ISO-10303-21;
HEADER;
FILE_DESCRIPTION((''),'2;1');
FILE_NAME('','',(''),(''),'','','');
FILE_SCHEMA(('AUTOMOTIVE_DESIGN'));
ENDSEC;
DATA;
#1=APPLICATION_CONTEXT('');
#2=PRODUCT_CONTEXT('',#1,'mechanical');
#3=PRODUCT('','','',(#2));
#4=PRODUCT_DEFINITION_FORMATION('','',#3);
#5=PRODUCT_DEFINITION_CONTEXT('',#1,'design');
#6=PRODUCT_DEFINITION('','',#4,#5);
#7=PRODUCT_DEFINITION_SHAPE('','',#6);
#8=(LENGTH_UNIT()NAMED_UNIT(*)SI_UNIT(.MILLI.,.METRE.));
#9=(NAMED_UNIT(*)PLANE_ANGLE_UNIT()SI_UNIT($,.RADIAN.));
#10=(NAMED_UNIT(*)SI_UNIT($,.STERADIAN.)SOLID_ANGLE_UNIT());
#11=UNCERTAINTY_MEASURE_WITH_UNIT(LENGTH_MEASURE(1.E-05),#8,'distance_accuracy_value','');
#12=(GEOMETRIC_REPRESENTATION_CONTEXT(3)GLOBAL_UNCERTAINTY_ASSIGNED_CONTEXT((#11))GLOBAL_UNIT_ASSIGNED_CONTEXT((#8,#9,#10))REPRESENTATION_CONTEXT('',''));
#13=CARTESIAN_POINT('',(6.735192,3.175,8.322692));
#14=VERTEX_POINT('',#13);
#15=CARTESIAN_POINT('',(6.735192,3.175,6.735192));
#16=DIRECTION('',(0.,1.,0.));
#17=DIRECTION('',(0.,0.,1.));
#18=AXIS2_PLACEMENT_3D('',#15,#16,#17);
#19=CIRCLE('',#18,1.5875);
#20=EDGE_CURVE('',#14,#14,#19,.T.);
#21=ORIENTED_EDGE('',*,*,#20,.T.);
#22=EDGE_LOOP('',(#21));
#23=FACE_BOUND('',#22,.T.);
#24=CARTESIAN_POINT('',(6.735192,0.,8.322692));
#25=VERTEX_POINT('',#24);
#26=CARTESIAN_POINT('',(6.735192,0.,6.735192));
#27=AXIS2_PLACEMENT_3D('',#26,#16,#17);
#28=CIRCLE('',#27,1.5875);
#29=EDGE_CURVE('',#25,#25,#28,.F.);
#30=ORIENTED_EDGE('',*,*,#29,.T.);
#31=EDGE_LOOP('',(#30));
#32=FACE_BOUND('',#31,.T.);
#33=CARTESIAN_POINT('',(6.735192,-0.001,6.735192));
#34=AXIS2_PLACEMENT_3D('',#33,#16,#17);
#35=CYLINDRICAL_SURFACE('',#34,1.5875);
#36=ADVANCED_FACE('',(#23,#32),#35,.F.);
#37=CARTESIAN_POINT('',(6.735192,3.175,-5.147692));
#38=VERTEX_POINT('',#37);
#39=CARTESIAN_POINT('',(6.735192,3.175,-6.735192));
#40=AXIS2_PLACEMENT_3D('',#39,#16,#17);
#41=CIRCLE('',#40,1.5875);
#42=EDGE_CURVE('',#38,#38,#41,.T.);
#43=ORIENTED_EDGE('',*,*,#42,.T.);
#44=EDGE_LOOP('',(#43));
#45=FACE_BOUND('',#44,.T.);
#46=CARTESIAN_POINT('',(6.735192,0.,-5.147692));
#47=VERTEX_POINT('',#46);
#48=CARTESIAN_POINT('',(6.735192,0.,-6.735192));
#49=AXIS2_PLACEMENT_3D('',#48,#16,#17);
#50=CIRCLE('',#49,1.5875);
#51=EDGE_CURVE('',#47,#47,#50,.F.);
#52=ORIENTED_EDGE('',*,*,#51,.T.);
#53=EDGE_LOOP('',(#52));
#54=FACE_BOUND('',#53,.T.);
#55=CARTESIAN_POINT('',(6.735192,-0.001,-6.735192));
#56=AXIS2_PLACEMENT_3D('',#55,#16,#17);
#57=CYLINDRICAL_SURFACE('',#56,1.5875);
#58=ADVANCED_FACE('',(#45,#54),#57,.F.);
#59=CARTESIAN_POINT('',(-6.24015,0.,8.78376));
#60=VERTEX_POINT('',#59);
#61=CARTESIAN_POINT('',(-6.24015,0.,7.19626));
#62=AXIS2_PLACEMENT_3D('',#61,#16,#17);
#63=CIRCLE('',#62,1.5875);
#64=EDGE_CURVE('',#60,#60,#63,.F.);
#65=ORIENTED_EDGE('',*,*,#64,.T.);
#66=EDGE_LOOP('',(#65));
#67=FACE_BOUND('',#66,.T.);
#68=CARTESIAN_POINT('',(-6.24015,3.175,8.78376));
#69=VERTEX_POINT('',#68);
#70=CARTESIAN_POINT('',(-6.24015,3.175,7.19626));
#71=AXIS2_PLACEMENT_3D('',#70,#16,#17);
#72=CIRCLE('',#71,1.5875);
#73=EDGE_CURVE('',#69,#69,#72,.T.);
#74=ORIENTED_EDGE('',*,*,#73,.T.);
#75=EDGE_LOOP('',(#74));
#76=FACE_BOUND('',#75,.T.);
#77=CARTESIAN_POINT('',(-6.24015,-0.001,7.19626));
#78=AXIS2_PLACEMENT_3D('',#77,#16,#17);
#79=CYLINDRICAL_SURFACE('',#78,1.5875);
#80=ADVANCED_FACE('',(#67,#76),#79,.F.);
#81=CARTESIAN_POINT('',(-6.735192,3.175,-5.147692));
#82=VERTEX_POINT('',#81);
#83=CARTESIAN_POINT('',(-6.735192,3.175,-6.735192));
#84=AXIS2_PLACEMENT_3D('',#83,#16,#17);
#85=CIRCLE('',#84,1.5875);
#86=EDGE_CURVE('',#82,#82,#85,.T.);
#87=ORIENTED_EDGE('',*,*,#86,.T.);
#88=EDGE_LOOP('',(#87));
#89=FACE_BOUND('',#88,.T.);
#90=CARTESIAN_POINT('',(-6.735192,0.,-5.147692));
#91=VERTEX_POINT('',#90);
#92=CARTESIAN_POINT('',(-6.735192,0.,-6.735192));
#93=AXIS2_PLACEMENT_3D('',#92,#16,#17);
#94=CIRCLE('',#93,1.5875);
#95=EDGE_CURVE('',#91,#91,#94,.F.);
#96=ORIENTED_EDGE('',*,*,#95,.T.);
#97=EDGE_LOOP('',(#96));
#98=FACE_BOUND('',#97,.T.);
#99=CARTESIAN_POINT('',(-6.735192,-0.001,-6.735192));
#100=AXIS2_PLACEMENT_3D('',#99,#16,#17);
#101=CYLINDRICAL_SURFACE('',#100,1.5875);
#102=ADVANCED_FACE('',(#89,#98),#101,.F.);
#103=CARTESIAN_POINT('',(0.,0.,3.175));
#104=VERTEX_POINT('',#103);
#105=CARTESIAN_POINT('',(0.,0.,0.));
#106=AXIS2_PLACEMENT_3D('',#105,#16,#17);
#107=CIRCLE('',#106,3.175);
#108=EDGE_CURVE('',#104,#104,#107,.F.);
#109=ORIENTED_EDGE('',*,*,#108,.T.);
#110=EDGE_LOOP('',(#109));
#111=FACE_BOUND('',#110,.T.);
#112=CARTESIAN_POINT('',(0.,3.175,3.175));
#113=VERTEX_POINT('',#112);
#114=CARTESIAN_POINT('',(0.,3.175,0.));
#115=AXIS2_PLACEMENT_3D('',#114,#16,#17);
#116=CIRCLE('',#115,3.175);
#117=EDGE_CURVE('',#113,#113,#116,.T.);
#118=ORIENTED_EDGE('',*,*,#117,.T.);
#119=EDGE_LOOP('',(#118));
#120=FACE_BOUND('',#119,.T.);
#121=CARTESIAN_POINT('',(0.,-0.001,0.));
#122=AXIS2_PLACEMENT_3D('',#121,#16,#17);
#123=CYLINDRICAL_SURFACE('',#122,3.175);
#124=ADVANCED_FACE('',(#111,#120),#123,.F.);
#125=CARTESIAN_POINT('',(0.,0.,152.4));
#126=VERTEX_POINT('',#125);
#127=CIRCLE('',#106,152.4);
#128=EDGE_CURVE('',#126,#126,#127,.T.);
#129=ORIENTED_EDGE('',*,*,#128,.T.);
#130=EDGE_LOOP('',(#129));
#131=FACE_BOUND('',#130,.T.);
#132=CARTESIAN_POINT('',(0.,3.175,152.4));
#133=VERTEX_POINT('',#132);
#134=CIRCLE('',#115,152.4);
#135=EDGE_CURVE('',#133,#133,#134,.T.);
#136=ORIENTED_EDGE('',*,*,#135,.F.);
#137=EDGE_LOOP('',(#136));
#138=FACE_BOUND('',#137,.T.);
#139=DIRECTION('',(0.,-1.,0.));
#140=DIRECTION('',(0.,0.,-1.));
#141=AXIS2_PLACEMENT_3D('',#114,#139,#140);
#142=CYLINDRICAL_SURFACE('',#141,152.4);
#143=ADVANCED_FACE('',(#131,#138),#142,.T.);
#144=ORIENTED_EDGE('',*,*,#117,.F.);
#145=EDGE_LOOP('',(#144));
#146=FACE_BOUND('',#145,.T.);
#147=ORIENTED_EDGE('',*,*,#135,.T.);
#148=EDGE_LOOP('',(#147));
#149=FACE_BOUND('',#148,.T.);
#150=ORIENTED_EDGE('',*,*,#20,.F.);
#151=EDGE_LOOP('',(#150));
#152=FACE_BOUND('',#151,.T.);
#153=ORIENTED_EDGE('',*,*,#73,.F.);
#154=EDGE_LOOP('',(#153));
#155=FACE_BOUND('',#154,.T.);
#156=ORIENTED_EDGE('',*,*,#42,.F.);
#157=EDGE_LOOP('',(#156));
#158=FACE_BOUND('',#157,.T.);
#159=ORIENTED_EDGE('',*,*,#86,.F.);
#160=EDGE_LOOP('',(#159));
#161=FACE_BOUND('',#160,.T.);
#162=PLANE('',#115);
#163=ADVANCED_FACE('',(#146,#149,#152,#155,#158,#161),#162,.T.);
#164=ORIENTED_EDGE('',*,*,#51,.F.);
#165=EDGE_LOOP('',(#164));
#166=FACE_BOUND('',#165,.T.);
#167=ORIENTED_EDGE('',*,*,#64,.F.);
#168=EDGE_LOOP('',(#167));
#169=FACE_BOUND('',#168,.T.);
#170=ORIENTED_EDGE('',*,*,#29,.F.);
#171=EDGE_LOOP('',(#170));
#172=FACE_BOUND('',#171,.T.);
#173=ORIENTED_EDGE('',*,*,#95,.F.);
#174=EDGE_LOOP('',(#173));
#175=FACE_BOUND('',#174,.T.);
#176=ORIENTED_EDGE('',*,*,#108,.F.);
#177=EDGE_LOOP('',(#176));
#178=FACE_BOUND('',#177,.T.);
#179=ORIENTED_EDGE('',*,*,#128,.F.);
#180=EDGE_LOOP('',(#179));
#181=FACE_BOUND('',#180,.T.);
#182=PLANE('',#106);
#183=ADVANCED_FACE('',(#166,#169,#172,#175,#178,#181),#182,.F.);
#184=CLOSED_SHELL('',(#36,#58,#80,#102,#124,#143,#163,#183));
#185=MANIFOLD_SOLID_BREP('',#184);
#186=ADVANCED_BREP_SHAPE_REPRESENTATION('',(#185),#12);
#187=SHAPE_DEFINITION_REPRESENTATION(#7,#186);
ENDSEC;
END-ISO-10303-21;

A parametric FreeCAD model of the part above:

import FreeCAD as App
import Part
import Sketcher
Q = App.Units.Quantity

doc = App.newDocument("Part")
body = doc.addObject("PartDesign::Body", "Body")

# Sketch on XZ plane
sketch1 = body.newObject("Sketcher::SketchObject", "Sketch")
sketch1.AttachmentSupport = (doc.getObject("XZ_Plane"), [""])
sketch1.MapMode = "FlatFace"
sketch1.addGeometry(Part.Circle(App.Vector(0, 0, 0), App.Vector(0, 0, 1), 152), False)
sketch1.addConstraint(Sketcher.Constraint("Coincident", 0, 3, -1, 1))
sketch1.addConstraint(Sketcher.Constraint("Diameter", 0, Q("12 in")))
pad1 = body.newObject("PartDesign::Pad", "Pad")
pad1.Profile = sketch1
pad1.Length = Q("0.125 in")
pad1.Reversed = True

# Sketch on XZ plane
sketch2 = body.newObject("Sketcher::SketchObject", "Sketch001")
sketch2.AttachmentSupport = (doc.getObject("XZ_Plane"), [""])
sketch2.MapMode = "FlatFace"
sketch2.AttachmentOffset = App.Placement(App.Vector(0, 0, -0.125 * 25.4), App.Rotation())
sketch2.addGeometry(Part.Circle(App.Vector(0, 0, 0), App.Vector(0, 0, 1), 3.2), False)
sketch2.addConstraint(Sketcher.Constraint("Coincident", 0, 3, -1, 1))
sketch2.addConstraint(Sketcher.Constraint("Diameter", 0, Q("0.25 in")))
pocket1 = body.newObject("PartDesign::Pocket", "Pocket")
pocket1.Profile = sketch2
pocket1.Type = "UpToFirst"
pocket1.Reversed = True

# Sketch on XZ plane
sketch3 = body.newObject("Sketcher::SketchObject", "Sketch002")
sketch3.AttachmentSupport = (doc.getObject("XZ_Plane"), [""])
sketch3.MapMode = "FlatFace"
sketch3.AttachmentOffset = App.Placement(App.Vector(0, 0, -0.125 * 25.4), App.Rotation())
sketch3.addGeometry(Part.Circle(App.Vector(6.7, -6.7, 0), App.Vector(0, 0, 1), 1.6), False)
sketch3.addConstraint(Sketcher.Constraint("Diameter", 0, Q("0.125 in")))
sketch3.addConstraint(Sketcher.Constraint("DistanceX", -1, 1, 0, 3, 6.735192))
sketch3.addConstraint(Sketcher.Constraint("DistanceY", 0, 3, -1, 1, 6.735192))
pocket2 = body.newObject("PartDesign::Pocket", "Pocket001")
pocket2.Profile = sketch3
pocket2.Type = "UpToFirst"
pocket2.Reversed = True

# Sketch on XZ plane
sketch4 = body.newObject("Sketcher::SketchObject", "Sketch003")
sketch4.AttachmentSupport = (doc.getObject("XZ_Plane"), [""])
sketch4.MapMode = "FlatFace"
sketch4.AttachmentOffset = App.Placement(App.Vector(0, 0, -0.125 * 25.4), App.Rotation())
sketch4.addGeometry(Part.Circle(App.Vector(-6.7, -6.7, 0), App.Vector(0, 0, 1), 1.6), False)
sketch4.addConstraint(Sketcher.Constraint("Diameter", 0, Q("0.125 in")))
sketch4.addConstraint(Sketcher.Constraint("DistanceX", 0, 3, -1, 1, 6.735192))
sketch4.addConstraint(Sketcher.Constraint("DistanceY", 0, 3, -1, 1, 6.735192))
pocket3 = body.newObject("PartDesign::Pocket", "Pocket002")
pocket3.Profile = sketch4
pocket3.Type = "UpToFirst"
pocket3.Reversed = True

# Sketch on XZ plane
sketch5 = body.newObject("Sketcher::SketchObject", "Sketch004")
sketch5.AttachmentSupport = (doc.getObject("XZ_Plane"), [""])
sketch5.MapMode = "FlatFace"
sketch5.AttachmentOffset = App.Placement(App.Vector(0, 0, -0.125 * 25.4), App.Rotation())
sketch5.addGeometry(Part.Circle(App.Vector(-6.2, 7.2, 0), App.Vector(0, 0, 1), 1.6), False)
sketch5.addConstraint(Sketcher.Constraint("Diameter", 0, Q("0.125 in")))
sketch5.addConstraint(Sketcher.Constraint("DistanceX", 0, 3, -1, 1, 6.24015))
sketch5.addConstraint(Sketcher.Constraint("DistanceY", -1, 1, 0, 3, 7.19626))
pocket4 = body.newObject("PartDesign::Pocket", "Pocket003")
pocket4.Profile = sketch5
pocket4.Type = "UpToFirst"
pocket4.Reversed = True

# Sketch on XZ plane
sketch6 = body.newObject("Sketcher::SketchObject", "Sketch005")
sketch6.AttachmentSupport = (doc.getObject("XZ_Plane"), [""])
sketch6.MapMode = "FlatFace"
sketch6.AttachmentOffset = App.Placement(App.Vector(0, 0, -0.125 * 25.4), App.Rotation())
sketch6.addGeometry(Part.Circle(App.Vector(6.7, 6.7, 0), App.Vector(0, 0, 1), 1.6), False)
sketch6.addConstraint(Sketcher.Constraint("Diameter", 0, Q("0.125 in")))
sketch6.addConstraint(Sketcher.Constraint("DistanceX", -1, 1, 0, 3, 6.735192))
sketch6.addConstraint(Sketcher.Constraint("DistanceY", -1, 1, 0, 3, 6.735192))
pocket5 = body.newObject("PartDesign::Pocket", "Pocket004")
pocket5.Profile = sketch6
pocket5.Type = "UpToFirst"
pocket5.Reversed = True

doc.recompute()
